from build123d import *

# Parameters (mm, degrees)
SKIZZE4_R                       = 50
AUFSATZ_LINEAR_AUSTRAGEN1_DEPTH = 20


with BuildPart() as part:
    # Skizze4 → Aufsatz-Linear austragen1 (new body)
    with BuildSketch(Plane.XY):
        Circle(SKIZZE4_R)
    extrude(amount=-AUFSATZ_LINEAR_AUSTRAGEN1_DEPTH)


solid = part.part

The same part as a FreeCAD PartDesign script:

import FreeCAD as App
import Part
import Sketcher
from FreeCAD import Vector

doc = App.newDocument("Part")
body = doc.addObject("PartDesign::Body", "Body")

# Sketch on XY plane
sketch1 = body.newObject("Sketcher::SketchObject", "Sketch")
sketch1.AttachmentSupport = (doc.getObject("XY_Plane"), [""])
sketch1.MapMode = "FlatFace"
sketch1.addGeometry(Part.Circle(Vector(0, 0, 0), Vector(0, 0, 1), 50), False)
sketch1.addConstraint([
    Sketcher.Constraint("Coincident", 0, 3, -1, 1),
    Sketcher.Constraint("Diameter", 0, 100.0),
])
pad1 = body.newObject("PartDesign::Pad", "Pad")
pad1.Profile = sketch1
pad1.Length = 20
pad1.Reversed = True

doc.recompute()
